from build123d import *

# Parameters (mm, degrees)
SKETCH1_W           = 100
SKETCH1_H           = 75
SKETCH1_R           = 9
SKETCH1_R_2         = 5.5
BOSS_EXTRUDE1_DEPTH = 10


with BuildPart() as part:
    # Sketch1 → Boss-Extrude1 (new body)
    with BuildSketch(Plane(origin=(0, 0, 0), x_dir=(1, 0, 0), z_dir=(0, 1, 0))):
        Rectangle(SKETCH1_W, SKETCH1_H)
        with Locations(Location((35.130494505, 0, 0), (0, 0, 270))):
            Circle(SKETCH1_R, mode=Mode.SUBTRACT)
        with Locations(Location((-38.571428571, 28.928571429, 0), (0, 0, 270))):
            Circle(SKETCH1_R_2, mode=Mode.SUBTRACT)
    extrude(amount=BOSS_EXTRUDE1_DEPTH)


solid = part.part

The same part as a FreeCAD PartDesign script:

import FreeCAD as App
import Part
import Sketcher

V = App.Vector

doc = App.newDocument("Part")
body = doc.addObject("PartDesign::Body", "Body")

# Sketch on XZ plane
sketch1 = body.newObject("Sketcher::SketchObject", "Sketch")
sketch1.AttachmentSupport = (doc.getObject("XZ_Plane"), [""])
sketch1.MapMode = "FlatFace"
sketch1.addGeometry([
    Part.LineSegment(V(-50, -37.5, 0), V(-50, 37.5, 0)),  # 0
    Part.LineSegment(V(-50, 37.5, 0), V(50, 37.5, 0)),  # 1
    Part.LineSegment(V(50, 37.5, 0), V(50, -37.5, 0)),  # 2
    Part.LineSegment(V(50, -37.5, 0), V(-50, -37.5, 0)),  # 3
    Part.Circle(V(35.130495, 0, 0), V(0, 0, 1), 9),  # 4
    Part.Circle(V(-38.571429, -28.928571, 0), V(0, 0, 1), 5.5),  # 5
], False)
sketch1.addConstraint([
    Sketcher.Constraint("Coincident", 0, 2, 1, 1),
    Sketcher.Constraint("Coincident", 1, 2, 2, 1),
    Sketcher.Constraint("Coincident", 2, 2, 3, 1),
    Sketcher.Constraint("Coincident", 3, 2, 0, 1),
    Sketcher.Constraint("Vertical", 0),
    Sketcher.Constraint("Horizontal", 1),
    Sketcher.Constraint("Vertical", 2),
    Sketcher.Constraint("Horizontal", 3),
    Sketcher.Constraint("Symmetric", 0, 2, 2, 2, -1, 1),
    Sketcher.Constraint("PointOnObject", 4, 3, -1),
    Sketcher.Constraint("Diameter", 4, 18.0),
    Sketcher.Constraint("Diameter", 5, 11.0),
    Sketcher.Constraint("DistanceX", 1, 1, 1, 2, 100.0),
    Sketcher.Constraint("DistanceY", 0, 1, 0, 2, 75.0),
    Sketcher.Constraint("DistanceX", 5, 3, -1, 1, 38.571429),
    Sketcher.Constraint("DistanceY", 5, 3, -1, 1, 28.928571),
    Sketcher.Constraint("DistanceX", -1, 1, 4, 3, 35.130495),
])
pad1 = body.newObject("PartDesign::Pad", "Pad")
pad1.Profile = sketch1
pad1.Length = 10
pad1.Reversed = True

doc.recompute()
